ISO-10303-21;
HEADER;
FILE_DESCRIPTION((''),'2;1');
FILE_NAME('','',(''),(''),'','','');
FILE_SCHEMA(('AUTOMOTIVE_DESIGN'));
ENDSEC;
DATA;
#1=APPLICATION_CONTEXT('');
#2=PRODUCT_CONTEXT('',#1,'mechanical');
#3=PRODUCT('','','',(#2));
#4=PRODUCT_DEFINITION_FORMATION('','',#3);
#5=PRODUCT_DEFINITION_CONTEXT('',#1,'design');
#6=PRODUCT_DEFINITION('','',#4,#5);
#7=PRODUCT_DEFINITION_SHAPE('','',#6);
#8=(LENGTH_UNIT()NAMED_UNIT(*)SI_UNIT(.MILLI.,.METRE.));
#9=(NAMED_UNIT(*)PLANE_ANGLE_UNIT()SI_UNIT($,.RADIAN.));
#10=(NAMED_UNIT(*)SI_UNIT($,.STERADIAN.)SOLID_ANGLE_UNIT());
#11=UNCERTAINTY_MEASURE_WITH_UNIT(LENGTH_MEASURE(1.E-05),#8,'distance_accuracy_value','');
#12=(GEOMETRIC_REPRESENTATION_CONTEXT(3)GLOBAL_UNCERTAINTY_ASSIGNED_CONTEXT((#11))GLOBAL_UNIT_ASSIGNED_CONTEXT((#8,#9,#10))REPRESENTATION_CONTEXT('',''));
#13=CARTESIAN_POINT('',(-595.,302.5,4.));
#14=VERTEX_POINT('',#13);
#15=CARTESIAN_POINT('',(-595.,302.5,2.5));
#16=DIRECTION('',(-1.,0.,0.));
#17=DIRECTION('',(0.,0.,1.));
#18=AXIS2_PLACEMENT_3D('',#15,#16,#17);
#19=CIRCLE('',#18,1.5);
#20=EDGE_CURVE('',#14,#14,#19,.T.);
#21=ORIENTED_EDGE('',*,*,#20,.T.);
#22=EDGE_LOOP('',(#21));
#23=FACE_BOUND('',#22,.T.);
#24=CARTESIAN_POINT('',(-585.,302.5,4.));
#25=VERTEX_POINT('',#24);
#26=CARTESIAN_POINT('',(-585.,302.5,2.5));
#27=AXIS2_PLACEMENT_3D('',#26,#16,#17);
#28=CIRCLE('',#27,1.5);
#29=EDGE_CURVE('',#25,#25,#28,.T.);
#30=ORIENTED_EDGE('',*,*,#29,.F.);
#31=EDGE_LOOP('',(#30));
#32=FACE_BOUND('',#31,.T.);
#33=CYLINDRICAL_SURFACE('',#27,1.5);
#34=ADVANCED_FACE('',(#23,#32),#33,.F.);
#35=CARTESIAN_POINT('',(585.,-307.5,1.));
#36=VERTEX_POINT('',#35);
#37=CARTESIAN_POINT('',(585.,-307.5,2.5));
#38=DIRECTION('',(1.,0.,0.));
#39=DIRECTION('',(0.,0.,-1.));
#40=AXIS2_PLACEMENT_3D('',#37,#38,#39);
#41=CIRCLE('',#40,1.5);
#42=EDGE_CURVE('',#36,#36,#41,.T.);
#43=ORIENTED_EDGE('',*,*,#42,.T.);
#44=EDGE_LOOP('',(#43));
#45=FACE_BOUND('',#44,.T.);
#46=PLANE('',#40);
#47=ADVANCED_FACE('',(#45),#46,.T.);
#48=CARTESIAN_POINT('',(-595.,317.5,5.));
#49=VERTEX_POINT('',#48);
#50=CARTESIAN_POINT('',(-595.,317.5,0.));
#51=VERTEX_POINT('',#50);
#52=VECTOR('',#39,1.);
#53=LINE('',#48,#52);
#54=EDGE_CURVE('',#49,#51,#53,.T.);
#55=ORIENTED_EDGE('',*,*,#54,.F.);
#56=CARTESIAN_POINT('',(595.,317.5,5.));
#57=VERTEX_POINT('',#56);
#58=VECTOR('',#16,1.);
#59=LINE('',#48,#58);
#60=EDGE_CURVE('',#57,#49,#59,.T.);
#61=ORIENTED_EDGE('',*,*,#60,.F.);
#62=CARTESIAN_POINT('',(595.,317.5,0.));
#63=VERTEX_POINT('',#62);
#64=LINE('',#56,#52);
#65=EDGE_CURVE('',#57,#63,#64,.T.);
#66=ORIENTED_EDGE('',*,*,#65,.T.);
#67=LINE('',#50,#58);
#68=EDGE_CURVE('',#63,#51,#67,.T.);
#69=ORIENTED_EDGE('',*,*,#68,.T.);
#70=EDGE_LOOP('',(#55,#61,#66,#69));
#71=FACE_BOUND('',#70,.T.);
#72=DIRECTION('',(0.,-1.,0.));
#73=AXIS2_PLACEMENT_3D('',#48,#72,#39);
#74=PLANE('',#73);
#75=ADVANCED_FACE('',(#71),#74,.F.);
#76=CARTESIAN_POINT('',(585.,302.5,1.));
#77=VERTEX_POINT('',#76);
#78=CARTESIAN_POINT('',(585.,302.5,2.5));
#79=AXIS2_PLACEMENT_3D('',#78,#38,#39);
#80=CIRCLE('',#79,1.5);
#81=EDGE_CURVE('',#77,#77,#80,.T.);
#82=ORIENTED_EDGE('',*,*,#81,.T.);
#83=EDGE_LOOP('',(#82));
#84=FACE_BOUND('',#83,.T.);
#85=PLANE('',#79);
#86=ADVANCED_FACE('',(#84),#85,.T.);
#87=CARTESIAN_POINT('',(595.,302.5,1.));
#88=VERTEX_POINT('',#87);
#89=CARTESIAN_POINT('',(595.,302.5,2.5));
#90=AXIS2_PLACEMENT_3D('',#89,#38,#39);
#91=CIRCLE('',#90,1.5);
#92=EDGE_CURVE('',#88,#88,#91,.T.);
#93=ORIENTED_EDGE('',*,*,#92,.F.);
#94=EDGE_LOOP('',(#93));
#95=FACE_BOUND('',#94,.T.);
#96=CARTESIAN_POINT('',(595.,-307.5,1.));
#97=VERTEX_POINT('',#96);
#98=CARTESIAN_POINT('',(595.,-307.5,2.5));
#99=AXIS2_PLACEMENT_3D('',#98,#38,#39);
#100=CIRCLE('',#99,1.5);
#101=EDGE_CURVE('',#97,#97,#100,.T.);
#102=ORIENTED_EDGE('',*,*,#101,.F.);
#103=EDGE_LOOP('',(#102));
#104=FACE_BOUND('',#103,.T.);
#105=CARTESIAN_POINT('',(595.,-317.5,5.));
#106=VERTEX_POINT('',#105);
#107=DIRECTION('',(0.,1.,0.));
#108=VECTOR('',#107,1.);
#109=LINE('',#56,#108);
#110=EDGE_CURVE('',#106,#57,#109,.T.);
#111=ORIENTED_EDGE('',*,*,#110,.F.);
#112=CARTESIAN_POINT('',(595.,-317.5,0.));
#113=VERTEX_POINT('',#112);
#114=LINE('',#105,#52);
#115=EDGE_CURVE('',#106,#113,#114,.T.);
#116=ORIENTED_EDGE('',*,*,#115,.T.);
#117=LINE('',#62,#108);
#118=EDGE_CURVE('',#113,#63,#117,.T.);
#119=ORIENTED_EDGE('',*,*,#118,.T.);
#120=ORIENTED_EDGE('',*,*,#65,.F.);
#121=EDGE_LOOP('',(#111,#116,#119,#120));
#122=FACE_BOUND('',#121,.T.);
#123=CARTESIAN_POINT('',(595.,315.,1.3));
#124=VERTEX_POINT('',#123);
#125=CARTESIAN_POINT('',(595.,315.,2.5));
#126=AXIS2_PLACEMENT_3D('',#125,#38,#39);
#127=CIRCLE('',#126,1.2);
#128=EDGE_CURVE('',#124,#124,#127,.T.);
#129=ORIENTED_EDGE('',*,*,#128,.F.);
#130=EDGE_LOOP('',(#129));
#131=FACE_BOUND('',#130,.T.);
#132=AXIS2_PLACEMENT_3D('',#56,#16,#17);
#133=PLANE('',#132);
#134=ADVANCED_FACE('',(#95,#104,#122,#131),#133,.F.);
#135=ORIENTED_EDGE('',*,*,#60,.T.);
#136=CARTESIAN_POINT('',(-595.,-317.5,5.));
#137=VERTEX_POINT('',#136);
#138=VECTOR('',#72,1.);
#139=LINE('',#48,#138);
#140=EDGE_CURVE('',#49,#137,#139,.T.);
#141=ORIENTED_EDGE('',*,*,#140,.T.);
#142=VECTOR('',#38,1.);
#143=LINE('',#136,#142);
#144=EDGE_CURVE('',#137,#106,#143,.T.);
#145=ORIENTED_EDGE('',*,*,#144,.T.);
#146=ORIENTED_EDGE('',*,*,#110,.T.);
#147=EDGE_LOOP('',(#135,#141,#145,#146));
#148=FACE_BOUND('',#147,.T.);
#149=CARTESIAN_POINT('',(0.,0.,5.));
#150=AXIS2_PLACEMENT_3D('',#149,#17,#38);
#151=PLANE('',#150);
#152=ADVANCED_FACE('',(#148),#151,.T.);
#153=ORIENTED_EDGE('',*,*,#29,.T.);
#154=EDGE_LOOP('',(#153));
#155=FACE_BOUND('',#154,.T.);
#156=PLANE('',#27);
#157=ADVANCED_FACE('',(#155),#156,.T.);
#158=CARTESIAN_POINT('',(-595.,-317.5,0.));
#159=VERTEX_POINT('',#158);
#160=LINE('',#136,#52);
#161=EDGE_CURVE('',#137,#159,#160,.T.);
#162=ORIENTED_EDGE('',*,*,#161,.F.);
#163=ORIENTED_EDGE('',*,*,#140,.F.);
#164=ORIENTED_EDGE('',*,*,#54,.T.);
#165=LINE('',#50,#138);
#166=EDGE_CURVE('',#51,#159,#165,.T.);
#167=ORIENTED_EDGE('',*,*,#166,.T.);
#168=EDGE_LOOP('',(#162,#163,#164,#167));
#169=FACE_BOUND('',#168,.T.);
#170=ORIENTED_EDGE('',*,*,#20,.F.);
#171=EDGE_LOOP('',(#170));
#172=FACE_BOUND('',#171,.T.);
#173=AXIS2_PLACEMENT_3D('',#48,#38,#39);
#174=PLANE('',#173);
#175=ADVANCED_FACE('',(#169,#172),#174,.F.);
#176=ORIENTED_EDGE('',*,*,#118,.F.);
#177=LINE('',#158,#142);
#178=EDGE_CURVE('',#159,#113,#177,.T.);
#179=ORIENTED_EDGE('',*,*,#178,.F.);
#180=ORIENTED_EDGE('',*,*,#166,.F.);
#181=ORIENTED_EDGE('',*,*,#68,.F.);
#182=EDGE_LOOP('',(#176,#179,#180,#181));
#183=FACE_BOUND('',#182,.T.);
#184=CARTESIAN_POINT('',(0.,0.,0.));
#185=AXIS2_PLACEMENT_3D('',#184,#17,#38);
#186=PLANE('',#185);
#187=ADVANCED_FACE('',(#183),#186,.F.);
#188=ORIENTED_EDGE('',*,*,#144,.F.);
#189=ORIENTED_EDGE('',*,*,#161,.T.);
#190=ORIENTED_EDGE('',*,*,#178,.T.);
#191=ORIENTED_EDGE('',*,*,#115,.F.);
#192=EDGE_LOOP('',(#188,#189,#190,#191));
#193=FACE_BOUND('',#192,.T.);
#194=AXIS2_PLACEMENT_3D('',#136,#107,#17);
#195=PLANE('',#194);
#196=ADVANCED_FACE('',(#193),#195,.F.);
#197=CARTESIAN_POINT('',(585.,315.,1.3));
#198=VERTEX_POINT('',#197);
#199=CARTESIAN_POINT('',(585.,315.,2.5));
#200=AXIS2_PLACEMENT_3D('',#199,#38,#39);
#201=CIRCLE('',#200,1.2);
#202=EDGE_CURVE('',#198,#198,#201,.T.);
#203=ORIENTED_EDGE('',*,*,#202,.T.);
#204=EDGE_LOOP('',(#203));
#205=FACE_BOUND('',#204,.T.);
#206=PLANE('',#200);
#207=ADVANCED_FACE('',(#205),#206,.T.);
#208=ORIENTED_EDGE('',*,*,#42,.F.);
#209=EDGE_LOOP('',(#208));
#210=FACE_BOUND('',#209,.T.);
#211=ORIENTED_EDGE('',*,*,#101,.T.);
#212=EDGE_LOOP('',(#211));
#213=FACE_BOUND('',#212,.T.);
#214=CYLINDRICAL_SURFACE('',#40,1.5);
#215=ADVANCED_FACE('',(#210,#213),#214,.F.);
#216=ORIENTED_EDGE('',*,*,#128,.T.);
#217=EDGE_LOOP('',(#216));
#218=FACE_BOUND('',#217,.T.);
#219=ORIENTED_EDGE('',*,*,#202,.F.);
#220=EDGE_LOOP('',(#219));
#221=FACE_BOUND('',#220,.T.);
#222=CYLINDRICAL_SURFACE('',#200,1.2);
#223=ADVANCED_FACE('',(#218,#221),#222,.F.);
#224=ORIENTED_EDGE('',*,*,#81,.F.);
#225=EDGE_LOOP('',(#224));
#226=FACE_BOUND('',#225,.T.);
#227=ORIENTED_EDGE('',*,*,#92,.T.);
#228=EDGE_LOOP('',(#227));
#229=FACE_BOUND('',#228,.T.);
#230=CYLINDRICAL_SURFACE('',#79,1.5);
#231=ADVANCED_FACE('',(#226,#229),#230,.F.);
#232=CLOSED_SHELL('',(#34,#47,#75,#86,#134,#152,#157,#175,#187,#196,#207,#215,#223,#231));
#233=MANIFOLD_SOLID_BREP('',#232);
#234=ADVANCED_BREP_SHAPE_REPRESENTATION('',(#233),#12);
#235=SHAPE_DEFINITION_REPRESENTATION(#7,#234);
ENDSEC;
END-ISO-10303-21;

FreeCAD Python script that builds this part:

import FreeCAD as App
import Part
import Sketcher


def add_polygon(sketch, points):
    """Adds a closed chain of lines whose ends are joined by coincident constraints."""
    first, n = sketch.GeometryCount, len(points)
    for a, b in zip(points, points[1:] + points[:1]):
        sketch.addGeometry(Part.LineSegment(App.Vector(*a, 0), App.Vector(*b, 0)), False)
    for i in range(n):
        sketch.addConstraint(Sketcher.Constraint("Coincident", first + i, 2, first + (i + 1) % n, 1))

doc = App.newDocument("Part")
params = doc.addObject("Spreadsheet::Sheet", "Params")
for row, (alias, value) in enumerate([
    ("sketch1_width", "1190 mm"),
    ("sketch1_height", "635 mm"),
    ("pad1_length", "5 mm"),
    ("sketch2_diameter", "3 mm"),
    ("sketch2_diameter2", "2.4 mm"),
    ("pocket1_length", "10 mm"),
    ("sketch3_diameter", "3 mm"),
    ("pocket2_length", "10 mm"),
    ("sketch4_diameter", "2.4 mm"),
    ("pocket3_length", "10 mm"),
], start=1):
    params.set(f"A{row}", alias)
    params.set(f"B{row}", "=" + value)
    params.setAlias(f"B{row}", alias)

body = doc.addObject("PartDesign::Body", "Body")

# Sketch on XY plane
sketch1 = body.newObject("Sketcher::SketchObject", "Sketch")
sketch1.AttachmentSupport = (doc.getObject("XY_Plane"), [""])
sketch1.MapMode = "FlatFace"
add_polygon(sketch1, [(-595, 318), (-595, -318), (595, -318), (595, 318)])  # lines 0-3
sketch1.addConstraint([
    Sketcher.Constraint("Vertical", 0),
    Sketcher.Constraint("Horizontal", 1),
    Sketcher.Constraint("Vertical", 2),
    Sketcher.Constraint("Horizontal", 3),
    Sketcher.Constraint("Symmetric", 0, 2, 2, 2, -1, 1),
    Sketcher.Constraint("DistanceX", 1, 1, 1, 2, 1190.0),
    Sketcher.Constraint("DistanceY", 0, 2, 0, 1, 635.0),
])
sketch1.setExpression("Constraints[9]", "Params.sketch1_width")
sketch1.setExpression("Constraints[10]", "Params.sketch1_height")
pad1 = body.newObject("PartDesign::Pad", "Pad")
pad1.Profile = sketch1
pad1.setExpression("Length", "Params.pad1_length")

# Sketch on YZ plane
sketch2 = body.newObject("Sketcher::SketchObject", "Sketch001")
sketch2.AttachmentSupport = (doc.getObject("YZ_Plane"), [""])
sketch2.MapMode = "FlatFace"
sketch2.AttachmentOffset = App.Placement(App.Vector(0, 0, -595), App.Rotation())
sketch2.addGeometry([
    Part.Circle(App.Vector(-320, 2.5, 0), App.Vector(0, 0, 1), 1.2),
    Part.Circle(App.Vector(302.5, 2.5, 0), App.Vector(0, 0, 1), 1.5),
], False)
sketch2.addConstraint([
    Sketcher.Constraint("Horizontal", 0, 3, 1, 3),
    Sketcher.Constraint("Diameter", 1, 3.0),
    Sketcher.Constraint("Diameter", 0, 2.4),
    Sketcher.Constraint("DistanceX", 0, 3, -1, 1, 320.0),
    Sketcher.Constraint("DistanceY", -1, 1, 0, 3, 2.5),
    Sketcher.Constraint("DistanceX", -1, 1, 1, 3, 302.5),
])
sketch2.setExpression("Constraints[1]", "Params.sketch2_diameter")
sketch2.setExpression("Constraints[2]", "Params.sketch2_diameter2")
pocket1 = body.newObject("PartDesign::Pocket", "Pocket")
pocket1.Profile = sketch2
pocket1.setExpression("Length", "Params.pocket1_length")
pocket1.Reversed = True

# Sketch on YZ plane
sketch3 = body.newObject("Sketcher::SketchObject", "Sketch002")
sketch3.AttachmentSupport = (doc.getObject("YZ_Plane"), [""])
sketch3.MapMode = "FlatFace"
sketch3.AttachmentOffset = App.Placement(App.Vector(0, 0, 585), App.Rotation())
sketch3.addGeometry([
    Part.Circle(App.Vector(302.5, 2.5, 0), App.Vector(0, 0, 1), 1.5),
    Part.Circle(App.Vector(-307.5, 2.5, 0), App.Vector(0, 0, 1), 1.5),
], False)
sketch3.addConstraint([
    Sketcher.Constraint("Equal", 0, 1),
    Sketcher.Constraint("Horizontal", 0, 3, 1, 3),
    Sketcher.Constraint("Diameter", 0, 3.0),
    Sketcher.Constraint("DistanceX", 1, 3, 0, 3, 610.0),
    Sketcher.Constraint("DistanceX", -1, 1, 0, 3, 302.5),
    Sketcher.Constraint("DistanceY", -1, 1, 0, 3, 2.5),
])
sketch3.setExpression("Constraints[2]", "Params.sketch3_diameter")
pocket2 = body.newObject("PartDesign::Pocket", "Pocket001")
pocket2.Profile = sketch3
pocket2.setExpression("Length", "Params.pocket2_length")
pocket2.Reversed = True

# Sketch on YZ plane
sketch4 = body.newObject("Sketcher::SketchObject", "Sketch003")
sketch4.AttachmentSupport = (doc.getObject("YZ_Plane"), [""])
sketch4.MapMode = "FlatFace"
sketch4.AttachmentOffset = App.Placement(App.Vector(0, 0, 595), App.Rotation())
sketch4.addGeometry(Part.Circle(App.Vector(315, 2.5, 0), App.Vector(0, 0, 1), 1.2), False)
sketch4.addConstraint([
    Sketcher.Constraint("Diameter", 0, 2.4),
    Sketcher.Constraint("DistanceX", -1, 1, 0, 3, 315.0),
    Sketcher.Constraint("DistanceY", -1, 1, 0, 3, 2.5),
])
sketch4.setExpression("Constraints[0]", "Params.sketch4_diameter")
pocket3 = body.newObject("PartDesign::Pocket", "Pocket002")
pocket3.Profile = sketch4
pocket3.setExpression("Length", "Params.pocket3_length")

doc.recompute()
